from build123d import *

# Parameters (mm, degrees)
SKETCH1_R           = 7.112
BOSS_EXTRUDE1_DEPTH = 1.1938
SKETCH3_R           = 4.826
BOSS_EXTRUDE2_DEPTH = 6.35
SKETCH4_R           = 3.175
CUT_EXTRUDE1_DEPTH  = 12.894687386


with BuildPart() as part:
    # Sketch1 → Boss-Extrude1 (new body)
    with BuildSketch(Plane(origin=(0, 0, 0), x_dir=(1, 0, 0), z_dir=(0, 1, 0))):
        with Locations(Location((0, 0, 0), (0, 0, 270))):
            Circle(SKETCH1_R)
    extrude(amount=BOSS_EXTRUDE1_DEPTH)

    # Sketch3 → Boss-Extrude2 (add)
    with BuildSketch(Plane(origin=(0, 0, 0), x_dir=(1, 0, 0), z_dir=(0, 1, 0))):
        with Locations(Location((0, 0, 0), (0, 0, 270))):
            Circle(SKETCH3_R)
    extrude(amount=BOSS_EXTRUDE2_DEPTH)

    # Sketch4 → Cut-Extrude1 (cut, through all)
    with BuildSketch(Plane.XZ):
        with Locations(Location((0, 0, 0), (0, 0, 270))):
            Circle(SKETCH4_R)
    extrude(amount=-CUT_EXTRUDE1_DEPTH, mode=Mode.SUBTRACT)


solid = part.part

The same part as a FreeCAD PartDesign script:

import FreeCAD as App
import Part
import Sketcher
Q = App.Units.Quantity

doc = App.newDocument("Part")
params = doc.addObject("Spreadsheet::Sheet", "Params")
for row, (alias, value) in enumerate([
    ("sketch1_diameter", "0.56 in"),
    ("pad1_length", "0.047 in"),
    ("sketch2_diameter", "0.38 in"),
    ("pad2_length", "0.25 in"),
    ("sketch3_diameter", "0.25 in"),
], start=1):
    params.set(f"A{row}", alias)
    params.set(f"B{row}", "=" + value)
    params.setAlias(f"B{row}", alias)

body = doc.addObject("PartDesign::Body", "Body")

# Sketch on XZ plane
sketch1 = body.newObject("Sketcher::SketchObject", "Sketch")
sketch1.AttachmentSupport = (doc.getObject("XZ_Plane"), [""])
sketch1.MapMode = "FlatFace"
sketch1.addGeometry(Part.Circle(App.Vector(0, 0, 0), App.Vector(0, 0, 1), 7), False)
sketch1.addConstraint([
    Sketcher.Constraint("Coincident", 0, 3, -1, 1),
    Sketcher.Constraint("Diameter", 0, Q("0.56 in")),
])
sketch1.setExpression("Constraints[1]", "Params.sketch1_diameter")
pad1 = body.newObject("PartDesign::Pad", "Pad")
pad1.Profile = sketch1
pad1.setExpression("Length", "Params.pad1_length")
pad1.Reversed = True

# Sketch on XZ plane
sketch2 = body.newObject("Sketcher::SketchObject", "Sketch001")
sketch2.AttachmentSupport = (doc.getObject("XZ_Plane"), [""])
sketch2.MapMode = "FlatFace"
sketch2.addGeometry(Part.Circle(App.Vector(0, 0, 0), App.Vector(0, 0, 1), 4.8), False)
sketch2.addConstraint([
    Sketcher.Constraint("Coincident", 0, 3, -1, 1),
    Sketcher.Constraint("Diameter", 0, Q("0.38 in")),
])
sketch2.setExpression("Constraints[1]", "Params.sketch2_diameter")
pad2 = body.newObject("PartDesign::Pad", "Pad001")
pad2.Profile = sketch2
pad2.setExpression("Length", "Params.pad2_length")
pad2.Reversed = True

# Sketch on XZ plane
sketch3 = body.newObject("Sketcher::SketchObject", "Sketch002")
sketch3.AttachmentSupport = (doc.getObject("XZ_Plane"), [""])
sketch3.MapMode = "FlatFace"
sketch3.addGeometry(Part.Circle(App.Vector(0, 0, 0), App.Vector(0, 0, 1), 3.2), False)
sketch3.addConstraint([
    Sketcher.Constraint("Coincident", 0, 3, -1, 1),
    Sketcher.Constraint("Diameter", 0, Q("0.25 in")),
])
sketch3.setExpression("Constraints[1]", "Params.sketch3_diameter")
pocket1 = body.newObject("PartDesign::Pocket", "Pocket")
pocket1.Profile = sketch3
pocket1.Type = "ThroughAll"

doc.recompute()
